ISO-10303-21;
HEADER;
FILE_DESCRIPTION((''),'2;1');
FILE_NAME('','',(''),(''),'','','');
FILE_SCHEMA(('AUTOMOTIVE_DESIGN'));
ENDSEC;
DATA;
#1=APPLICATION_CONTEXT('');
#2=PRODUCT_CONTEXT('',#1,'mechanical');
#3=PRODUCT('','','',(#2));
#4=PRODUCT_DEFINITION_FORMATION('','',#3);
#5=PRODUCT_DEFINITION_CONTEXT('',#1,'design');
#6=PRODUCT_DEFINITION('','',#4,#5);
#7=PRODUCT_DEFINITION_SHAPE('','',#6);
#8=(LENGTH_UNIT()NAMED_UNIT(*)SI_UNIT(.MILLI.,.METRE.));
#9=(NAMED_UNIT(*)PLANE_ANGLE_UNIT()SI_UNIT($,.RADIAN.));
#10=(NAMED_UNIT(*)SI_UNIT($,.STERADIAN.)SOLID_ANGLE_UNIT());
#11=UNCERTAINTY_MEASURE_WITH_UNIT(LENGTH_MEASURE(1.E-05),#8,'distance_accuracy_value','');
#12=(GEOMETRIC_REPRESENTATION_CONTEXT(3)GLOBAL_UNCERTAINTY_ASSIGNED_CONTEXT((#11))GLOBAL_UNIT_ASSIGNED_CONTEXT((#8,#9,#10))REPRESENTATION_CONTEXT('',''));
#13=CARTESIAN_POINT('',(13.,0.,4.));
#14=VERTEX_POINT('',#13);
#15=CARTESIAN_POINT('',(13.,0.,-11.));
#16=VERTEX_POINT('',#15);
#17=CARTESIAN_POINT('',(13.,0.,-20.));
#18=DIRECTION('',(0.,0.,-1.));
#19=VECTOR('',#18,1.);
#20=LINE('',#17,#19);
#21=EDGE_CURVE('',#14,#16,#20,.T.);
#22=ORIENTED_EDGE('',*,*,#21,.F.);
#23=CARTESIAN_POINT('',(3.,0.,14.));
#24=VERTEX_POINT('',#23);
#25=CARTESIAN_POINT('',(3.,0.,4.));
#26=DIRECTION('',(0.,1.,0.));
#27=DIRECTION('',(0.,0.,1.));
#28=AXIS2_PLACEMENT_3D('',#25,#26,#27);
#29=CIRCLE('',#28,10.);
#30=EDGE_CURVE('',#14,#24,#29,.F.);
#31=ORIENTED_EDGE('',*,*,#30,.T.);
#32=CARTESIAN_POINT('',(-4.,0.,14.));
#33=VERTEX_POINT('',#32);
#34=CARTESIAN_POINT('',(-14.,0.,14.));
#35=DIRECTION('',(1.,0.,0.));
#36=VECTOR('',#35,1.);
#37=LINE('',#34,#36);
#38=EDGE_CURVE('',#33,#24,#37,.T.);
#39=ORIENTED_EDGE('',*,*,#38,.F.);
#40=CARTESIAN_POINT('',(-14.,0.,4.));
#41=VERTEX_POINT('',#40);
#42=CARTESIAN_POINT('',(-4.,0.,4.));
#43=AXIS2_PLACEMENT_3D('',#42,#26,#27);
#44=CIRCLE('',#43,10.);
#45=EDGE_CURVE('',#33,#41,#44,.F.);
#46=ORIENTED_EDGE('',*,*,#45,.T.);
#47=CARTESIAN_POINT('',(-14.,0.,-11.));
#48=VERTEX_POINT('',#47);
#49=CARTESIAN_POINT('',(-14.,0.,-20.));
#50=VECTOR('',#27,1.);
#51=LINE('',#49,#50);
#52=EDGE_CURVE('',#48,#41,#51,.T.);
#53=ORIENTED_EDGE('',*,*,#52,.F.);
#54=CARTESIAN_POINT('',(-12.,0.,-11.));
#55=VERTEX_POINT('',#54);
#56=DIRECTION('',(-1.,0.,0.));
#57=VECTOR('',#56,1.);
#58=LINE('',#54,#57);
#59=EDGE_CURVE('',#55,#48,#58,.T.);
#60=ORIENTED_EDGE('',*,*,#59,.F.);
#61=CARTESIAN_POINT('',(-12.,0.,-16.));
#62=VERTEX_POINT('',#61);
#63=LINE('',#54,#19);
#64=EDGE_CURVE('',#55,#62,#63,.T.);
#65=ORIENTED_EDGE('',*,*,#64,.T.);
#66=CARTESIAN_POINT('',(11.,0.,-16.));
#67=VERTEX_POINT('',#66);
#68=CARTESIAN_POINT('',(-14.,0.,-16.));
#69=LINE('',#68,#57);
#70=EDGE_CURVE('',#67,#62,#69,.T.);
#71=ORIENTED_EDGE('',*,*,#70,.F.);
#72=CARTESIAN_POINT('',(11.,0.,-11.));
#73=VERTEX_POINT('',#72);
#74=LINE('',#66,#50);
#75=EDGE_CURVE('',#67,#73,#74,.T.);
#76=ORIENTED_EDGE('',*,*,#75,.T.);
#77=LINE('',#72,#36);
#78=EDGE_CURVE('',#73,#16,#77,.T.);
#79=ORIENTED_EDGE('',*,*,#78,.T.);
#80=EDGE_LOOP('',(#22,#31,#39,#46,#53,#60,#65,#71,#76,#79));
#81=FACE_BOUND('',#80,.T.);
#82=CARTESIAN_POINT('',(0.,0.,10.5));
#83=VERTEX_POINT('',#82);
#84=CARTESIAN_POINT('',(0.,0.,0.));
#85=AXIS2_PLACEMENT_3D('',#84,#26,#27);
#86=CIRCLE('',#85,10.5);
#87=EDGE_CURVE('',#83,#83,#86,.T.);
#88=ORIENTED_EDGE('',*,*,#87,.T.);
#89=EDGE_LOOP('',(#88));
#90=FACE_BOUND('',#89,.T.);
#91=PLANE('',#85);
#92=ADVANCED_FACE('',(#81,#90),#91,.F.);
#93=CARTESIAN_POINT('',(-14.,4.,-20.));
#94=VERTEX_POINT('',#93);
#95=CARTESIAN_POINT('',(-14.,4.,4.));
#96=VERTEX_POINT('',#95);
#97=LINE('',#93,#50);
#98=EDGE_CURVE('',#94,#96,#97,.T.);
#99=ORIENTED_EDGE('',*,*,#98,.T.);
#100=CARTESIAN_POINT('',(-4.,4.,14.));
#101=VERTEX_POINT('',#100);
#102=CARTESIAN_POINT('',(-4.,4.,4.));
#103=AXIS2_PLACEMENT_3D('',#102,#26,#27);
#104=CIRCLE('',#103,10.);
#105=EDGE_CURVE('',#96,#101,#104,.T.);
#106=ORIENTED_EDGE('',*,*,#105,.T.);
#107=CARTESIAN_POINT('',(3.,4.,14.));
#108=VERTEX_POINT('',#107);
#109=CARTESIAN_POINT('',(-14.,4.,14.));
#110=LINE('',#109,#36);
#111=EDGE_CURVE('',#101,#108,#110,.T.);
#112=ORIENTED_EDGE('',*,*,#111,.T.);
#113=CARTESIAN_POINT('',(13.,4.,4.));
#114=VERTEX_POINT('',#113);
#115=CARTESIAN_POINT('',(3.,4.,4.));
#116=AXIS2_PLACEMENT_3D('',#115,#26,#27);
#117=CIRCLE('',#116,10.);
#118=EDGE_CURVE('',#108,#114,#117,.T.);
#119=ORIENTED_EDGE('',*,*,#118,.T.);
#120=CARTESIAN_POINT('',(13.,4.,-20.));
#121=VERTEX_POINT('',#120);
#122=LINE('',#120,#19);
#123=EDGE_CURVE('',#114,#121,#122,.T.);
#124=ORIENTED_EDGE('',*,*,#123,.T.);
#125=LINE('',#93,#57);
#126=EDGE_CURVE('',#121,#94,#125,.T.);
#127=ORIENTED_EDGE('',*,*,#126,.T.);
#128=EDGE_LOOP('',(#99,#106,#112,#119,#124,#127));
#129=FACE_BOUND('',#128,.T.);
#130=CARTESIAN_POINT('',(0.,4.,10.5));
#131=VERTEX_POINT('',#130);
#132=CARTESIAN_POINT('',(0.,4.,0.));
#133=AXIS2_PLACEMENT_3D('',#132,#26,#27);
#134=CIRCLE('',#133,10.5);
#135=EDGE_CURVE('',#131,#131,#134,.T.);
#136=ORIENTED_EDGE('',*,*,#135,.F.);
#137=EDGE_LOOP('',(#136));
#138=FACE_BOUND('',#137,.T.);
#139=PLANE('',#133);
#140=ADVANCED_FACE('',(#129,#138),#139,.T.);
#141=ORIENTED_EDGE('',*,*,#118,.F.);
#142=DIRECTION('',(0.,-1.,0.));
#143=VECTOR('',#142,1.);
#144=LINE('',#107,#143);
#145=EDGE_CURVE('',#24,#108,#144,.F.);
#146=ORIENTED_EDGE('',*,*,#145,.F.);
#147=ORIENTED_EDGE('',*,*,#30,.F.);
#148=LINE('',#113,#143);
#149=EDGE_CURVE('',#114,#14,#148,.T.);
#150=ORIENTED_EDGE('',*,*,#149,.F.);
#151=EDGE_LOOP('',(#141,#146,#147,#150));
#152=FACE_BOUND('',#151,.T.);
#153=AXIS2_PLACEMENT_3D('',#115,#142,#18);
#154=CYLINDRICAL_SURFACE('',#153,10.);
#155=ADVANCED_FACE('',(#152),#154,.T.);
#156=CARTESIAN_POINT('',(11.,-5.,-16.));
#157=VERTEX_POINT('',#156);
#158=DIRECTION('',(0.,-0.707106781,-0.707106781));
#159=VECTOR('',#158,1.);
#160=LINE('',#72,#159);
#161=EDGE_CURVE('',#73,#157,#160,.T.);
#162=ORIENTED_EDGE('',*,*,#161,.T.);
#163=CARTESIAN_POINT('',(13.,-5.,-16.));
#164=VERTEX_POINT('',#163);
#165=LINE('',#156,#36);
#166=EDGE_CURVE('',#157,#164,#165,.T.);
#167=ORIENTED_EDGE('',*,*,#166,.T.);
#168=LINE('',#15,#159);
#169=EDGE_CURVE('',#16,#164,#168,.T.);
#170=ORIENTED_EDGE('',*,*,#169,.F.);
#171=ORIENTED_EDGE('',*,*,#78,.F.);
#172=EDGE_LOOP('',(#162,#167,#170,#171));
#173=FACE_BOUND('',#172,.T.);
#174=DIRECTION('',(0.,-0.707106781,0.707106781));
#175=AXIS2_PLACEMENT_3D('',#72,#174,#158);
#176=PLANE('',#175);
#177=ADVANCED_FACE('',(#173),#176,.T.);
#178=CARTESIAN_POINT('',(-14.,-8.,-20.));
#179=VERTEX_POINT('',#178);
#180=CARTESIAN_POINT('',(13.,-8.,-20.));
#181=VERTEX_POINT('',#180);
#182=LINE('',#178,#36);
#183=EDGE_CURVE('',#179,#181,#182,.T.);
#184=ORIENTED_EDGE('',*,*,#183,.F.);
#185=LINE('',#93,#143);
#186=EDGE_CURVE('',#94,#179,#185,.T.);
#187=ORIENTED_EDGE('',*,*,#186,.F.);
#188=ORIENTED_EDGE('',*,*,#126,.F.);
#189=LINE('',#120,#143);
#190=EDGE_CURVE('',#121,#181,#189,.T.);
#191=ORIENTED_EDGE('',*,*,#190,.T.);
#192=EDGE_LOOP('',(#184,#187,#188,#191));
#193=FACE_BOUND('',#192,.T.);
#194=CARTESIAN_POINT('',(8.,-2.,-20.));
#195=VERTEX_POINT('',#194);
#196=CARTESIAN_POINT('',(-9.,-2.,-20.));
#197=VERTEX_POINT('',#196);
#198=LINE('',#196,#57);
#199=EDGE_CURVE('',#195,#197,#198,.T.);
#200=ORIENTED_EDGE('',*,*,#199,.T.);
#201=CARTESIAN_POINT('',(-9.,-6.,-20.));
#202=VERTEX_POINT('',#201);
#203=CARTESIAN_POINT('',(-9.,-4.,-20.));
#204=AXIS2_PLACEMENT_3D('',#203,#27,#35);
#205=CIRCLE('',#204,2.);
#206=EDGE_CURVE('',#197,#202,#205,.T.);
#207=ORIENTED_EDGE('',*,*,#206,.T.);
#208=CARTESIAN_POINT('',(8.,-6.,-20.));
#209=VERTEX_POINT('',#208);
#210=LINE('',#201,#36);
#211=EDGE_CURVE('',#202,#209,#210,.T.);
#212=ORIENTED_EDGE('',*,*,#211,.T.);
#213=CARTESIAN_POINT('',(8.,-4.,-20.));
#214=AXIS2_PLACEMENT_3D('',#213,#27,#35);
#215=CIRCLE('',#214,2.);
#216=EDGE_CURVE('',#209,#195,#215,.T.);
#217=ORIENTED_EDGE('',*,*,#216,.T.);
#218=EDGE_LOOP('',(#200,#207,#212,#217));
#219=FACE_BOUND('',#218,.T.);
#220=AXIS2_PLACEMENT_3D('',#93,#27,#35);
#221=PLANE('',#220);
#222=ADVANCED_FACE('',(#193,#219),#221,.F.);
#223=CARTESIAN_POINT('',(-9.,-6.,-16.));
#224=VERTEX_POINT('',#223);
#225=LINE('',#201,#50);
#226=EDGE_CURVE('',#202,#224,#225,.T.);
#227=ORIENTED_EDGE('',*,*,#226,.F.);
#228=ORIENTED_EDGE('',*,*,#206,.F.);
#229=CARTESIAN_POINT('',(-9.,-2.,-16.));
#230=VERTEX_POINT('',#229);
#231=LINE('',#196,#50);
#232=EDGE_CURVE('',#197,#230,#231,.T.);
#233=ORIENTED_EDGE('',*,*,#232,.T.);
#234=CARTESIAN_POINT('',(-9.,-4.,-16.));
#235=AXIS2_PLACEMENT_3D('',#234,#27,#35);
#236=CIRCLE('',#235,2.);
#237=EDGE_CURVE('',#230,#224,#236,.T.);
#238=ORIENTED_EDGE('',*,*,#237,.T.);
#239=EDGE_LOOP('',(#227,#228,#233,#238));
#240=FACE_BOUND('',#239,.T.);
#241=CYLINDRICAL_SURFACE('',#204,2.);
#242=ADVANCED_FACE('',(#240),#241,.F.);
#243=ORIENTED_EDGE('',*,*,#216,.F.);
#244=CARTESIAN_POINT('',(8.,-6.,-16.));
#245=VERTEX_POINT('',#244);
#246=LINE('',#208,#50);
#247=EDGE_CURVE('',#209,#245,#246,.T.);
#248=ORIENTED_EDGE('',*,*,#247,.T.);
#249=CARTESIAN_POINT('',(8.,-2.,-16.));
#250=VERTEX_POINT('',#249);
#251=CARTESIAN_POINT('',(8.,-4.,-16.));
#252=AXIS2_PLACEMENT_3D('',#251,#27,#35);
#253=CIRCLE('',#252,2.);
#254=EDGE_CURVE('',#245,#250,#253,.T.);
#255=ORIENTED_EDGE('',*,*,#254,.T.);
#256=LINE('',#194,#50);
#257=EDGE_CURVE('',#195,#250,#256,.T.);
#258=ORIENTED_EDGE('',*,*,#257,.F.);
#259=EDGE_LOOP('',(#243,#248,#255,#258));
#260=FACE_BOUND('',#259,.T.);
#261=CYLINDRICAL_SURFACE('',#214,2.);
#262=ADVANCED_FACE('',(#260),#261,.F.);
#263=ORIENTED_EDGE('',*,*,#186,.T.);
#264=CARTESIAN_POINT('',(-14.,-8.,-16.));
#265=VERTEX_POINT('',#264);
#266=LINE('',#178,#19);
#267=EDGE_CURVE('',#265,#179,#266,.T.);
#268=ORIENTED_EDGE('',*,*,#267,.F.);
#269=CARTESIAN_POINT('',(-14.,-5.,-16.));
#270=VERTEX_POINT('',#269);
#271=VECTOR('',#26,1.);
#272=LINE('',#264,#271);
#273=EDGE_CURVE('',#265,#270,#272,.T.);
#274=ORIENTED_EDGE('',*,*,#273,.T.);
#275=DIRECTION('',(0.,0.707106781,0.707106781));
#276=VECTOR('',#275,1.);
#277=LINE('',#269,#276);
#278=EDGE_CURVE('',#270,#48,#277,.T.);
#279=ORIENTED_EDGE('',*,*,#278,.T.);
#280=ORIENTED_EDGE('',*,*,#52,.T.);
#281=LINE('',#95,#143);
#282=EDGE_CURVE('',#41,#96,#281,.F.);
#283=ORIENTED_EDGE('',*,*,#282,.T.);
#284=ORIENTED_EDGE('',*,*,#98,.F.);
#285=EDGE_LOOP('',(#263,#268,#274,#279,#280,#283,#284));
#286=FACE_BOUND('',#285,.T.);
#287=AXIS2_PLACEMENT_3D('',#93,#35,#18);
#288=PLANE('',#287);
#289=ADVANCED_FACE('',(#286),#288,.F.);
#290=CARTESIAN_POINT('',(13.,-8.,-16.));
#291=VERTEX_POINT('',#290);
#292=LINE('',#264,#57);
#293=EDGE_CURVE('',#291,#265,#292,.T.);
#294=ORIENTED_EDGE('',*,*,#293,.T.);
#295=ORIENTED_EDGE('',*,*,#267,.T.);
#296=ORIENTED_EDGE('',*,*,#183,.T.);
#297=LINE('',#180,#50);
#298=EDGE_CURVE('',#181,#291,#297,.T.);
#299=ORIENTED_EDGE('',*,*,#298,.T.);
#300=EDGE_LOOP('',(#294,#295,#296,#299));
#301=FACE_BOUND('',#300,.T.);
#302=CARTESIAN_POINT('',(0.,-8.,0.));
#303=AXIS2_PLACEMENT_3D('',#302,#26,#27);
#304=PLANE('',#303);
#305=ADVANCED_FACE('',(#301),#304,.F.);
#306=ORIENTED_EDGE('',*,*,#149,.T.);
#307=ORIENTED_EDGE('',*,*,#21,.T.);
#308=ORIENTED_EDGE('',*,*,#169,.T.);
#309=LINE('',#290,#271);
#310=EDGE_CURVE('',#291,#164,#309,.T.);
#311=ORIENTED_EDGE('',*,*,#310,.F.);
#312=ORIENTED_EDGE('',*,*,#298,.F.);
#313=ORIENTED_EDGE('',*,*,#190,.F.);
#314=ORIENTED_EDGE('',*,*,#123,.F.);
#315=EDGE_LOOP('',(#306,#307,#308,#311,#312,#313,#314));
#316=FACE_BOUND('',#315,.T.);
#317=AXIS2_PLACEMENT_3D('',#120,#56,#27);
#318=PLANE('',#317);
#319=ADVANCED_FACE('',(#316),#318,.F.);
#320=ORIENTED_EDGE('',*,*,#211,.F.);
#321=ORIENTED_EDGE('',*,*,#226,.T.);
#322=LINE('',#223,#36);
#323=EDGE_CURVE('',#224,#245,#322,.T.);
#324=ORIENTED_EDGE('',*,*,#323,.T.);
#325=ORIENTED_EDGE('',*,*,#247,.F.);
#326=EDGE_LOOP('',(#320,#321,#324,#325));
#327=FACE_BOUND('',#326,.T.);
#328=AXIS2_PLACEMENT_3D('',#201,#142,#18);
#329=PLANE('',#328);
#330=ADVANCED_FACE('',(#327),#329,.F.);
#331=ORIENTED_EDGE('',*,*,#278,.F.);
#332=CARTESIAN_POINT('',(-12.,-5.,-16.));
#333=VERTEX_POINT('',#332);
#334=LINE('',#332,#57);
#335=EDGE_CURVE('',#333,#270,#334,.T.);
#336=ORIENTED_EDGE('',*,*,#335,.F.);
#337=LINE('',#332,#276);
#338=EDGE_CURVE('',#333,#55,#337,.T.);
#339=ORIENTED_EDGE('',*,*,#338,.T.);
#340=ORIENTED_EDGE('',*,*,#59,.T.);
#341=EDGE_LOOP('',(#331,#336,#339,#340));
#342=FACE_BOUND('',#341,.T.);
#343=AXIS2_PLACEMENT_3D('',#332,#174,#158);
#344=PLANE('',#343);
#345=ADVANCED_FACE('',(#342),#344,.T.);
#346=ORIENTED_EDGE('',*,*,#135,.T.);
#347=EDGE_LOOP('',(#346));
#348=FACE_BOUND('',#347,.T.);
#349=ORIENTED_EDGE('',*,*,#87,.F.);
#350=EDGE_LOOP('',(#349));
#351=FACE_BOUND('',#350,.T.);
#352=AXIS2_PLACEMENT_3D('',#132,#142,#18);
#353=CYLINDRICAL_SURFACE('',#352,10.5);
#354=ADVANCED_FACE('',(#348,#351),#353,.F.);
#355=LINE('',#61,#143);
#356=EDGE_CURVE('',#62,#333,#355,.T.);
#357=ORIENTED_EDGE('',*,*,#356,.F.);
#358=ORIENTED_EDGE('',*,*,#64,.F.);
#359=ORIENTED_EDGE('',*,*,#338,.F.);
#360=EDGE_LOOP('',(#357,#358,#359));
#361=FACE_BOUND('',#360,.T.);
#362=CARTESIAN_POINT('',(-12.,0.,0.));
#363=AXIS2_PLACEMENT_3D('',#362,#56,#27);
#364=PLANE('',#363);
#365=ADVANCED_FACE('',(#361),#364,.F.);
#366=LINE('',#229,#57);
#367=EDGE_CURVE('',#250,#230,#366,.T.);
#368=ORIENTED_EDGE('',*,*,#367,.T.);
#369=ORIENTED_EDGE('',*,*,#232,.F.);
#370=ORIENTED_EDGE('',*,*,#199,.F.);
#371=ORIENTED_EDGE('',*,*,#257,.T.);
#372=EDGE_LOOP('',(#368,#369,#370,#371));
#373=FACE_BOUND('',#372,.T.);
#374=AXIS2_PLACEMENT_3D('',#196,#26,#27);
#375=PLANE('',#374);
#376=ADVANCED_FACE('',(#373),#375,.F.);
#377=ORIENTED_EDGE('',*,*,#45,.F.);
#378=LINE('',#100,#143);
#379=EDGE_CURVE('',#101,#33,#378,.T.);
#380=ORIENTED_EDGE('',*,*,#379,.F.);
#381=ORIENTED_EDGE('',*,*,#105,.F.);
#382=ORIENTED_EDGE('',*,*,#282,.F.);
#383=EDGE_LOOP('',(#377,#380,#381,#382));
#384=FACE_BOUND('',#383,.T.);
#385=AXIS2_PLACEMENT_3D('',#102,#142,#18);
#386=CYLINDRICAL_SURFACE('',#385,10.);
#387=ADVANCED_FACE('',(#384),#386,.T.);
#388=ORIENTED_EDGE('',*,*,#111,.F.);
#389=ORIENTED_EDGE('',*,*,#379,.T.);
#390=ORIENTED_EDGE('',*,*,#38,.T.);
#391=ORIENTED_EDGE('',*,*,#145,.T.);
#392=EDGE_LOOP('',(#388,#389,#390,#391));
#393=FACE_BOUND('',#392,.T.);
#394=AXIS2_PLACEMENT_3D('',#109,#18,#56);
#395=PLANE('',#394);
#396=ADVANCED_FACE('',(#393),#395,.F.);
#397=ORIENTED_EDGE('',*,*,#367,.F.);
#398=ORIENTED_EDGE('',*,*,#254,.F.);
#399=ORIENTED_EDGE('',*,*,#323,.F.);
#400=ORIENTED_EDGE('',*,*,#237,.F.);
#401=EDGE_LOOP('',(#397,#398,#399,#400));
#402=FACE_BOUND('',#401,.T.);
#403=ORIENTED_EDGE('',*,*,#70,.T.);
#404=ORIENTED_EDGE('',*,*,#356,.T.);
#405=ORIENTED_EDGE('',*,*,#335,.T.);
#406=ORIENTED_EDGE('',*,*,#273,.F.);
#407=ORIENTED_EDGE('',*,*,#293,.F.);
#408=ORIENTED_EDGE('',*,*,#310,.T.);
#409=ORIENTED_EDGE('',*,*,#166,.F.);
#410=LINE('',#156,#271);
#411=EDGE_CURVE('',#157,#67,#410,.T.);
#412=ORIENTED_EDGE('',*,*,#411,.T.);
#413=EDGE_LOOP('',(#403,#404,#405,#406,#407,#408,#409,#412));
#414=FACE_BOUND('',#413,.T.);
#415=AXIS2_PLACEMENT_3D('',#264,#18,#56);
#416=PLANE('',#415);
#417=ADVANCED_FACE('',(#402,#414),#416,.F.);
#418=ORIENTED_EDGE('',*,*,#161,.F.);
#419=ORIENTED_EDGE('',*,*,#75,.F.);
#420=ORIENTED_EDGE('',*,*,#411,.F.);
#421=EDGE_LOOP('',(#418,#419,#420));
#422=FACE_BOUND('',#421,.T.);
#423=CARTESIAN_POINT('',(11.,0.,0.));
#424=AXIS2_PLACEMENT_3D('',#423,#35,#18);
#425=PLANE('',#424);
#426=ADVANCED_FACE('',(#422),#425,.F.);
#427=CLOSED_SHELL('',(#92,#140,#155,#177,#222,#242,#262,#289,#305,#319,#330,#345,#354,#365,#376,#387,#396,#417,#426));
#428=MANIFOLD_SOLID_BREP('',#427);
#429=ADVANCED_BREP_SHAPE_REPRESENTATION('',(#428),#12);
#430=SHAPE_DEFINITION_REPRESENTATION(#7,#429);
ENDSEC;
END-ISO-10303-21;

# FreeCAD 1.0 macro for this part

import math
import FreeCAD as App
import Part
import Sketcher
from FreeCAD import Vector
Q = App.Units.Quantity


def edges_at(feature, points):
    """Names of the edges that pass closest to the given points."""
    edges = feature.Shape.Edges
    near = lambda p: min(range(len(edges)), key=lambda i: edges[i].distToShape(Part.Vertex(*p))[0])
    return sorted({f"Edge{near(p) + 1}" for p in points})


def add_polygon(sketch, points):
    """Adds a closed chain of lines whose ends are joined by coincident constraints."""
    first, n = sketch.GeometryCount, len(points)
    for a, b in zip(points, points[1:] + points[:1]):
        sketch.addGeometry(Part.LineSegment(App.Vector(*a, 0), App.Vector(*b, 0)), False)
    for i in range(n):
        sketch.addConstraint(Sketcher.Constraint("Coincident", first + i, 2, first + (i + 1) % n, 1))

doc = App.newDocument("Part")
body = doc.addObject("PartDesign::Body", "Body")

# Sketch on XZ plane
sketch1 = doc.addObject("Sketcher::SketchObject", "Sketch")
body.addObject(sketch1)
sketch1.AttachmentSupport = (doc.XZ_Plane, [""])
sketch1.MapMode = "FlatFace"
add_polygon(sketch1, [(-14, -20), (-14, 14), (13, 14), (13, -20)])  # lines 0-3
sketch1.addGeometry(Part.Circle(Vector(0, 0, 0), Vector(0, 0, 1), 10), False)  # 4
sketch1.addConstraint(Sketcher.Constraint("Vertical", 0))
sketch1.addConstraint(Sketcher.Constraint("Horizontal", 1))
sketch1.addConstraint(Sketcher.Constraint("Vertical", 2))
sketch1.addConstraint(Sketcher.Constraint("Horizontal", 3))
sketch1.addConstraint(Sketcher.Constraint("Coincident", 4, 3, -1, 1))
sketch1.addConstraint(Sketcher.Constraint("Diameter", 4, Q("21 mm")))
sketch1.addConstraint(Sketcher.Constraint("DistanceX", 1, 1, 1, 2, Q("27 mm")))
sketch1.addConstraint(Sketcher.Constraint("DistanceY", 0, 1, 0, 2, Q("34 mm")))
sketch1.addConstraint(Sketcher.Constraint("DistanceX", 0, 2, -1, 1, Q("14 mm")))
sketch1.addConstraint(Sketcher.Constraint("DistanceY", -1, 1, 0, 2, Q("14 mm")))
pad1 = doc.addObject("PartDesign::Pad", "Pad")
body.addObject(pad1)
pad1.Profile = sketch1
pad1.Length = 4
pad1.Reversed = True

# Sketch on XZ plane
sketch2 = doc.addObject("Sketcher::SketchObject", "Sketch001")
body.addObject(sketch2)
sketch2.AttachmentSupport = (doc.XZ_Plane, [""])
sketch2.MapMode = "FlatFace"
add_polygon(sketch2, [(-14, -16), (-14, -20), (13, -20), (13, -16)])  # lines 0-3
sketch2.addConstraint(Sketcher.Constraint("Vertical", 0))
sketch2.addConstraint(Sketcher.Constraint("Horizontal", 1))
sketch2.addConstraint(Sketcher.Constraint("Vertical", 2))
sketch2.addConstraint(Sketcher.Constraint("Horizontal", 3))
sketch2.addConstraint(Sketcher.Constraint("DistanceX", 1, 1, 1, 2, Q("27 mm")))
sketch2.addConstraint(Sketcher.Constraint("DistanceY", 0, 2, 0, 1, Q("4 mm")))
sketch2.addConstraint(Sketcher.Constraint("DistanceX", 0, 2, -1, 1, Q("14 mm")))
sketch2.addConstraint(Sketcher.Constraint("DistanceY", 0, 2, -1, 1, Q("20 mm")))
pad2 = doc.addObject("PartDesign::Pad", "Pad001")
body.addObject(pad2)
pad2.Profile = sketch2
pad2.Length = 8

# Sketch on YZ plane
sketch3 = doc.addObject("Sketcher::SketchObject", "Sketch002")
body.addObject(sketch3)
sketch3.AttachmentSupport = (doc.YZ_Plane, [""])
sketch3.MapMode = "FlatFace"
sketch3.AttachmentOffset = App.Placement(Vector(0, 0, -14), App.Rotation())
add_polygon(sketch3, [(0, -16), (-5, -16), (0, -11)])  # lines 0-2
sketch3.addConstraint(Sketcher.Constraint("Horizontal", 0))
sketch3.addConstraint(Sketcher.Constraint("Vertical", 2))
sketch3.addConstraint(Sketcher.Constraint("PointOnObject", 1, 2, -2))
sketch3.addConstraint(Sketcher.Constraint("Equal", 0, 2))
sketch3.addConstraint(Sketcher.Constraint("DistanceX", 0, 2, 0, 1, Q("5 mm")))
sketch3.addConstraint(Sketcher.Constraint("DistanceY", 0, 2, -1, 1, Q("16 mm")))
pad3 = doc.addObject("PartDesign::Pad", "Pad002")
body.addObject(pad3)
pad3.Profile = sketch3
pad3.Length = 2

# Sketch on YZ plane
sketch4 = doc.addObject("Sketcher::SketchObject", "Sketch003")
body.addObject(sketch4)
sketch4.AttachmentSupport = (doc.YZ_Plane, [""])
sketch4.MapMode = "FlatFace"
sketch4.AttachmentOffset = App.Placement(Vector(0, 0, 13), App.Rotation())
add_polygon(sketch4, [(0, -16), (0, -11), (-5, -16)])  # lines 0-2
sketch4.addConstraint(Sketcher.Constraint("Vertical", 0))
sketch4.addConstraint(Sketcher.Constraint("Horizontal", 2))
sketch4.addConstraint(Sketcher.Constraint("PointOnObject", 0, 2, -2))
sketch4.addConstraint(Sketcher.Constraint("Equal", 2, 0))
sketch4.addConstraint(Sketcher.Constraint("DistanceX", 2, 1, 2, 2, Q("5 mm")))
sketch4.addConstraint(Sketcher.Constraint("DistanceY", 0, 2, -1, 1, Q("11 mm")))
pad4 = doc.addObject("PartDesign::Pad", "Pad003")
body.addObject(pad4)
pad4.Profile = sketch4
pad4.Length = 2
pad4.Reversed = True
doc.recompute()

fillet = doc.addObject("PartDesign::Fillet", "Fillet")
body.addObject(fillet)
fillet.Base = (pad4, edges_at(pad4, [(-14, 2, 14), (13, 2, 14)]))
fillet.Radius = 10

# Sketch on XY plane
sketch5 = doc.addObject("Sketcher::SketchObject", "Sketch004")
body.addObject(sketch5)
sketch5.AttachmentSupport = (doc.XY_Plane, [""])
sketch5.MapMode = "FlatFace"
sketch5.AttachmentOffset = App.Placement(Vector(0, 0, -16), App.Rotation())
sketch5.addGeometry(Part.LineSegment(Vector(8, -2, 0), Vector(-9, -2, 0)), False)
sketch5.addGeometry(Part.ArcOfCircle(Part.Circle(Vector(-9, -4, 0), Vector(0, 0, 1), 2), math.radians(90), math.radians(270)), False)
sketch5.addGeometry(Part.LineSegment(Vector(-9, -6, 0), Vector(8, -6, 0)), False)
sketch5.addGeometry(Part.ArcOfCircle(Part.Circle(Vector(8, -4, 0), Vector(0, 0, 1), 2), math.radians(-90), math.radians(90)), False)
sketch5.addConstraint(Sketcher.Constraint("Tangent", 0, 2, 1, 1))
sketch5.addConstraint(Sketcher.Constraint("Tangent", 1, 2, 2, 1))
sketch5.addConstraint(Sketcher.Constraint("Tangent", 2, 2, 3, 1))
sketch5.addConstraint(Sketcher.Constraint("Tangent", 3, 2, 0, 1))
sketch5.addConstraint(Sketcher.Constraint("Horizontal", 0))
sketch5.addConstraint(Sketcher.Constraint("Horizontal", 2))
sketch5.addConstraint(Sketcher.Constraint("Radius", 1, Q("2 mm")))
sketch5.addConstraint(Sketcher.Constraint("DistanceX", 0, 2, 0, 1, Q("17 mm")))
sketch5.addConstraint(Sketcher.Constraint("DistanceX", 1, 3, -1, 1, Q("9 mm")))
sketch5.addConstraint(Sketcher.Constraint("DistanceY", 1, 3, -1, 1, Q("4 mm")))
pocket1 = doc.addObject("PartDesign::Pocket", "Pocket")
body.addObject(pocket1)
pocket1.Profile = sketch5
pocket1.Type = "ThroughAll"

doc.recompute()
